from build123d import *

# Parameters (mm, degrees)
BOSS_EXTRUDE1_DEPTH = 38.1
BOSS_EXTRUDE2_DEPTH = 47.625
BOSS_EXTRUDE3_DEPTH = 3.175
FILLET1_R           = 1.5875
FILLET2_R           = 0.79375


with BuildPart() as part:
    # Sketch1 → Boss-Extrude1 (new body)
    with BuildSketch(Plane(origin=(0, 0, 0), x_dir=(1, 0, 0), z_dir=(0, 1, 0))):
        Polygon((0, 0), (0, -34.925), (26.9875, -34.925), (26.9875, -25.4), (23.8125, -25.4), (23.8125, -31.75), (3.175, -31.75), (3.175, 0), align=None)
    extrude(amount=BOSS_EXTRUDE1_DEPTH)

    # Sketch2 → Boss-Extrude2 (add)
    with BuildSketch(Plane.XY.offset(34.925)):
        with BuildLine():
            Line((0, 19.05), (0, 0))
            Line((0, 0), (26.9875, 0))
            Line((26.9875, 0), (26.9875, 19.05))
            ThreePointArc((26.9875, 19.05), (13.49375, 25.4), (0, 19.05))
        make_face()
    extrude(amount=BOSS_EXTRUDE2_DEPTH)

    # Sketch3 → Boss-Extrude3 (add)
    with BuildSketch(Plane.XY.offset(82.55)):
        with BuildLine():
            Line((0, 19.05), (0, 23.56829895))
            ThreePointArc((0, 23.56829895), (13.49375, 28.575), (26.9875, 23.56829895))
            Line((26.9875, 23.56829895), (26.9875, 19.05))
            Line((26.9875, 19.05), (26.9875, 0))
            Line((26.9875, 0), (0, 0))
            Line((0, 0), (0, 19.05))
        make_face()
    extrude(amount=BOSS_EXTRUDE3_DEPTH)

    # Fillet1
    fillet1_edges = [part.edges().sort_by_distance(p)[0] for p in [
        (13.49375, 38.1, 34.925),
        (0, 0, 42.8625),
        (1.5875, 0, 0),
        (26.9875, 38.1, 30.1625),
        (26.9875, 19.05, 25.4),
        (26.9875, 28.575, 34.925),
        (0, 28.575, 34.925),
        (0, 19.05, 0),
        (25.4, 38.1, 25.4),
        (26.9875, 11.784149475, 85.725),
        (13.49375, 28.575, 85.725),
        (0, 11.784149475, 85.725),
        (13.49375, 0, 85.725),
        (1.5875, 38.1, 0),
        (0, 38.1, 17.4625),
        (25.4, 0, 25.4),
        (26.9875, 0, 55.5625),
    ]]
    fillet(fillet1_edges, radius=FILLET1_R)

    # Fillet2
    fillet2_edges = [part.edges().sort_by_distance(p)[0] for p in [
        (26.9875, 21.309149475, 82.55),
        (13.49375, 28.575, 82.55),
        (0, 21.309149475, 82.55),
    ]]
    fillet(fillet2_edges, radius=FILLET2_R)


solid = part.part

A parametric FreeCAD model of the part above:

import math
import FreeCAD as App
import Part
import Sketcher
from FreeCAD import Vector
Q = App.Units.Quantity


def edges_at(feature, points):
    """Names of the edges that pass closest to the given points."""
    edges = feature.Shape.Edges
    near = lambda p: min(range(len(edges)), key=lambda i: edges[i].distToShape(Part.Vertex(*p))[0])
    return sorted({f"Edge{near(p) + 1}" for p in points})

doc = App.newDocument("Part")
body = doc.addObject("PartDesign::Body", "Body")

# Sketch on XZ plane
sketch1 = body.newObject("Sketcher::SketchObject", "Sketch")
sketch1.AttachmentSupport = (doc.getObject("XZ_Plane"), [""])
sketch1.MapMode = "FlatFace"
sketch1.addGeometry(Part.LineSegment(Vector(0, 0, 0), Vector(0, 34.925, 0)), False)
sketch1.addGeometry(Part.LineSegment(Vector(0, 34.925, 0), Vector(26.9875, 34.925, 0)), False)
sketch1.addGeometry(Part.LineSegment(Vector(26.9875, 34.925, 0), Vector(26.9875, 25.4, 0)), False)
sketch1.addGeometry(Part.LineSegment(Vector(26.9875, 25.4, 0), Vector(23.8125, 25.4, 0)), False)
sketch1.addGeometry(Part.LineSegment(Vector(23.8125, 25.4, 0), Vector(23.8125, 31.75, 0)), False)
sketch1.addGeometry(Part.LineSegment(Vector(23.8125, 31.75, 0), Vector(3.175, 31.75, 0)), False)
sketch1.addGeometry(Part.LineSegment(Vector(3.175, 31.75, 0), Vector(3.175, 0, 0)), False)
sketch1.addGeometry(Part.LineSegment(Vector(3.175, 0, 0), Vector(0, 0, 0)), False)
sketch1.addConstraint(Sketcher.Constraint("Coincident", 0, 2, 1, 1))
sketch1.addConstraint(Sketcher.Constraint("Coincident", 1, 2, 2, 1))
sketch1.addConstraint(Sketcher.Constraint("Coincident", 2, 2, 3, 1))
sketch1.addConstraint(Sketcher.Constraint("Coincident", 3, 2, 4, 1))
sketch1.addConstraint(Sketcher.Constraint("Coincident", 4, 2, 5, 1))
sketch1.addConstraint(Sketcher.Constraint("Coincident", 5, 2, 6, 1))
sketch1.addConstraint(Sketcher.Constraint("Coincident", 6, 2, 7, 1))
sketch1.addConstraint(Sketcher.Constraint("Coincident", 7, 2, 0, 1))
sketch1.addConstraint(Sketcher.Constraint("Vertical", 0))
sketch1.addConstraint(Sketcher.Constraint("Horizontal", 1))
sketch1.addConstraint(Sketcher.Constraint("Vertical", 2))
sketch1.addConstraint(Sketcher.Constraint("Horizontal", 3))
sketch1.addConstraint(Sketcher.Constraint("Vertical", 4))
sketch1.addConstraint(Sketcher.Constraint("Horizontal", 5))
sketch1.addConstraint(Sketcher.Constraint("Vertical", 6))
sketch1.addConstraint(Sketcher.Constraint("Horizontal", 7))
sketch1.addConstraint(Sketcher.Constraint("Coincident", 7, 2, -1, 1))
sketch1.addConstraint(Sketcher.Constraint("Equal", 3, 7))
sketch1.addConstraint(Sketcher.Constraint("DistanceY", -1, 1, 2, 2, Q("1 in")))
sketch1.addConstraint(Sketcher.Constraint("DistanceY", 4, 1, 4, 2, Q("0.25 in")))
sketch1.addConstraint(Sketcher.Constraint("DistanceX", 1, 1, 1, 2, Q("1.0625 in")))
sketch1.addConstraint(Sketcher.Constraint("DistanceX", 3, 2, 3, 1, Q("0.125 in")))
sketch1.addConstraint(Sketcher.Constraint("DistanceY", 0, 1, 0, 2, Q("1.375 in")))
pad1 = body.newObject("PartDesign::Pad", "Pad")
pad1.Profile = sketch1
pad1.Length = Q("1.5 in")
pad1.Reversed = True

# Sketch on XY plane
sketch2 = body.newObject("Sketcher::SketchObject", "Sketch001")
sketch2.AttachmentSupport = (doc.getObject("XY_Plane"), [""])
sketch2.MapMode = "FlatFace"
sketch2.AttachmentOffset = App.Placement(Vector(0, 0, 1.375 * 25.4), App.Rotation())
sketch2.addGeometry(Part.LineSegment(Vector(0, 19.05, 0), Vector(0, 0, 0)), False)
sketch2.addGeometry(Part.LineSegment(Vector(0, 0, 0), Vector(26.9875, 0, 0)), False)
sketch2.addGeometry(Part.LineSegment(Vector(26.9875, 0, 0), Vector(26.9875, 19.05, 0)), False)
sketch2.addGeometry(Part.ArcOfCircle(Part.Circle(Vector(13.49375, 7.887891, 0), Vector(0, 0, 1), 17.512109), math.radians(39.597753), math.radians(140.402247)), False)
sketch2.addConstraint(Sketcher.Constraint("Coincident", 0, 2, 1, 1))
sketch2.addConstraint(Sketcher.Constraint("Coincident", 1, 2, 2, 1))
sketch2.addConstraint(Sketcher.Constraint("Coincident", 2, 2, 3, 1))
sketch2.addConstraint(Sketcher.Constraint("Coincident", 3, 2, 0, 1))
sketch2.addConstraint(Sketcher.Constraint("Vertical", 0))
sketch2.addConstraint(Sketcher.Constraint("Horizontal", 1))
sketch2.addConstraint(Sketcher.Constraint("Vertical", 2))
sketch2.addConstraint(Sketcher.Constraint("Coincident", 0, 2, -1, 1))
sketch2.addConstraint(Sketcher.Constraint("Horizontal", 2, 2, 3, 2))
sketch2.addConstraint(Sketcher.Constraint("DistanceY", 0, 2, 0, 1, Q("0.75 in")))
sketch2.addConstraint(Sketcher.Constraint("DistanceX", 1, 1, 1, 2, Q("1.0625 in")))
sketch2.addConstraint(Sketcher.Constraint("Radius", 3, 17.512109))
pad2 = body.newObject("PartDesign::Pad", "Pad001")
pad2.Profile = sketch2
pad2.Length = Q("1.875 in")

# Sketch on XY plane
sketch3 = body.newObject("Sketcher::SketchObject", "Sketch002")
sketch3.AttachmentSupport = (doc.getObject("XY_Plane"), [""])
sketch3.MapMode = "FlatFace"
sketch3.AttachmentOffset = App.Placement(Vector(0, 0, 3.25 * 25.4), App.Rotation())
sketch3.addGeometry(Part.ArcOfCircle(Part.Circle(Vector(13.49375, 7.887891, 0), Vector(0, 0, 1), 20.687109), math.radians(49.286412), math.radians(130.713588)), False)
sketch3.addGeometry(Part.LineSegment(Vector(0, 23.568299, 0), Vector(0, 0, 0)), False)
sketch3.addGeometry(Part.LineSegment(Vector(0, 0, 0), Vector(26.9875, 0, 0)), False)
sketch3.addGeometry(Part.LineSegment(Vector(26.9875, 0, 0), Vector(26.9875, 23.568299, 0)), False)
sketch3.addConstraint(Sketcher.Constraint("Coincident", 0, 2, 1, 1))
sketch3.addConstraint(Sketcher.Constraint("Coincident", 1, 2, 2, 1))
sketch3.addConstraint(Sketcher.Constraint("Coincident", 2, 2, 3, 1))
sketch3.addConstraint(Sketcher.Constraint("Coincident", 3, 2, 0, 1))
sketch3.addConstraint(Sketcher.Constraint("Vertical", 1))
sketch3.addConstraint(Sketcher.Constraint("Horizontal", 2))
sketch3.addConstraint(Sketcher.Constraint("Vertical", 3))
sketch3.addConstraint(Sketcher.Constraint("Coincident", 1, 2, -1, 1))
sketch3.addConstraint(Sketcher.Constraint("Horizontal", 0, 2, 3, 2))
sketch3.addConstraint(Sketcher.Constraint("DistanceX", 2, 1, 2, 2, Q("1.0625 in")))
sketch3.addConstraint(Sketcher.Constraint("Radius", 0, 20.687109))
sketch3.addConstraint(Sketcher.Constraint("DistanceY", 1, 2, 1, 1, 23.568299))
pad3 = body.newObject("PartDesign::Pad", "Pad002")
pad3.Profile = sketch3
pad3.Length = Q("0.125 in")
doc.recompute()

fillet = body.newObject("PartDesign::Fillet", "Fillet")
fillet.Base = (pad3, edges_at(pad3, [
    (13.494, 38.1, 34.925),
    (0, 0, 42.862),
    (1.587, 0, 0),
    (26.988, 38.1, 30.163),
    (26.988, 19.05, 25.4),
    (26.988, 28.575, 34.925),
    (0, 28.575, 34.925),
    (0, 19.05, 0),
    (25.4, 38.1, 25.4),
    (26.988, 11.784, 85.725),
    (13.494, 28.575, 85.725),
    (0, 11.784, 85.725),
    (13.494, 0, 85.725),
    (1.587, 38.1, 0),
    (0, 38.1, 17.462),
    (25.4, 0, 25.4),
    (26.988, 0, 55.562),
]))
fillet.Radius = Q("0.0625 in")
doc.recompute()

fillet2 = body.newObject("PartDesign::Fillet", "Fillet001")
fillet2.Base = (fillet, edges_at(fillet, [(26.988, 21.309, 82.55), (13.494, 28.575, 82.55), (0, 21.309, 82.55)]))
fillet2.Radius = Q("0.03125 in")

doc.recompute()
